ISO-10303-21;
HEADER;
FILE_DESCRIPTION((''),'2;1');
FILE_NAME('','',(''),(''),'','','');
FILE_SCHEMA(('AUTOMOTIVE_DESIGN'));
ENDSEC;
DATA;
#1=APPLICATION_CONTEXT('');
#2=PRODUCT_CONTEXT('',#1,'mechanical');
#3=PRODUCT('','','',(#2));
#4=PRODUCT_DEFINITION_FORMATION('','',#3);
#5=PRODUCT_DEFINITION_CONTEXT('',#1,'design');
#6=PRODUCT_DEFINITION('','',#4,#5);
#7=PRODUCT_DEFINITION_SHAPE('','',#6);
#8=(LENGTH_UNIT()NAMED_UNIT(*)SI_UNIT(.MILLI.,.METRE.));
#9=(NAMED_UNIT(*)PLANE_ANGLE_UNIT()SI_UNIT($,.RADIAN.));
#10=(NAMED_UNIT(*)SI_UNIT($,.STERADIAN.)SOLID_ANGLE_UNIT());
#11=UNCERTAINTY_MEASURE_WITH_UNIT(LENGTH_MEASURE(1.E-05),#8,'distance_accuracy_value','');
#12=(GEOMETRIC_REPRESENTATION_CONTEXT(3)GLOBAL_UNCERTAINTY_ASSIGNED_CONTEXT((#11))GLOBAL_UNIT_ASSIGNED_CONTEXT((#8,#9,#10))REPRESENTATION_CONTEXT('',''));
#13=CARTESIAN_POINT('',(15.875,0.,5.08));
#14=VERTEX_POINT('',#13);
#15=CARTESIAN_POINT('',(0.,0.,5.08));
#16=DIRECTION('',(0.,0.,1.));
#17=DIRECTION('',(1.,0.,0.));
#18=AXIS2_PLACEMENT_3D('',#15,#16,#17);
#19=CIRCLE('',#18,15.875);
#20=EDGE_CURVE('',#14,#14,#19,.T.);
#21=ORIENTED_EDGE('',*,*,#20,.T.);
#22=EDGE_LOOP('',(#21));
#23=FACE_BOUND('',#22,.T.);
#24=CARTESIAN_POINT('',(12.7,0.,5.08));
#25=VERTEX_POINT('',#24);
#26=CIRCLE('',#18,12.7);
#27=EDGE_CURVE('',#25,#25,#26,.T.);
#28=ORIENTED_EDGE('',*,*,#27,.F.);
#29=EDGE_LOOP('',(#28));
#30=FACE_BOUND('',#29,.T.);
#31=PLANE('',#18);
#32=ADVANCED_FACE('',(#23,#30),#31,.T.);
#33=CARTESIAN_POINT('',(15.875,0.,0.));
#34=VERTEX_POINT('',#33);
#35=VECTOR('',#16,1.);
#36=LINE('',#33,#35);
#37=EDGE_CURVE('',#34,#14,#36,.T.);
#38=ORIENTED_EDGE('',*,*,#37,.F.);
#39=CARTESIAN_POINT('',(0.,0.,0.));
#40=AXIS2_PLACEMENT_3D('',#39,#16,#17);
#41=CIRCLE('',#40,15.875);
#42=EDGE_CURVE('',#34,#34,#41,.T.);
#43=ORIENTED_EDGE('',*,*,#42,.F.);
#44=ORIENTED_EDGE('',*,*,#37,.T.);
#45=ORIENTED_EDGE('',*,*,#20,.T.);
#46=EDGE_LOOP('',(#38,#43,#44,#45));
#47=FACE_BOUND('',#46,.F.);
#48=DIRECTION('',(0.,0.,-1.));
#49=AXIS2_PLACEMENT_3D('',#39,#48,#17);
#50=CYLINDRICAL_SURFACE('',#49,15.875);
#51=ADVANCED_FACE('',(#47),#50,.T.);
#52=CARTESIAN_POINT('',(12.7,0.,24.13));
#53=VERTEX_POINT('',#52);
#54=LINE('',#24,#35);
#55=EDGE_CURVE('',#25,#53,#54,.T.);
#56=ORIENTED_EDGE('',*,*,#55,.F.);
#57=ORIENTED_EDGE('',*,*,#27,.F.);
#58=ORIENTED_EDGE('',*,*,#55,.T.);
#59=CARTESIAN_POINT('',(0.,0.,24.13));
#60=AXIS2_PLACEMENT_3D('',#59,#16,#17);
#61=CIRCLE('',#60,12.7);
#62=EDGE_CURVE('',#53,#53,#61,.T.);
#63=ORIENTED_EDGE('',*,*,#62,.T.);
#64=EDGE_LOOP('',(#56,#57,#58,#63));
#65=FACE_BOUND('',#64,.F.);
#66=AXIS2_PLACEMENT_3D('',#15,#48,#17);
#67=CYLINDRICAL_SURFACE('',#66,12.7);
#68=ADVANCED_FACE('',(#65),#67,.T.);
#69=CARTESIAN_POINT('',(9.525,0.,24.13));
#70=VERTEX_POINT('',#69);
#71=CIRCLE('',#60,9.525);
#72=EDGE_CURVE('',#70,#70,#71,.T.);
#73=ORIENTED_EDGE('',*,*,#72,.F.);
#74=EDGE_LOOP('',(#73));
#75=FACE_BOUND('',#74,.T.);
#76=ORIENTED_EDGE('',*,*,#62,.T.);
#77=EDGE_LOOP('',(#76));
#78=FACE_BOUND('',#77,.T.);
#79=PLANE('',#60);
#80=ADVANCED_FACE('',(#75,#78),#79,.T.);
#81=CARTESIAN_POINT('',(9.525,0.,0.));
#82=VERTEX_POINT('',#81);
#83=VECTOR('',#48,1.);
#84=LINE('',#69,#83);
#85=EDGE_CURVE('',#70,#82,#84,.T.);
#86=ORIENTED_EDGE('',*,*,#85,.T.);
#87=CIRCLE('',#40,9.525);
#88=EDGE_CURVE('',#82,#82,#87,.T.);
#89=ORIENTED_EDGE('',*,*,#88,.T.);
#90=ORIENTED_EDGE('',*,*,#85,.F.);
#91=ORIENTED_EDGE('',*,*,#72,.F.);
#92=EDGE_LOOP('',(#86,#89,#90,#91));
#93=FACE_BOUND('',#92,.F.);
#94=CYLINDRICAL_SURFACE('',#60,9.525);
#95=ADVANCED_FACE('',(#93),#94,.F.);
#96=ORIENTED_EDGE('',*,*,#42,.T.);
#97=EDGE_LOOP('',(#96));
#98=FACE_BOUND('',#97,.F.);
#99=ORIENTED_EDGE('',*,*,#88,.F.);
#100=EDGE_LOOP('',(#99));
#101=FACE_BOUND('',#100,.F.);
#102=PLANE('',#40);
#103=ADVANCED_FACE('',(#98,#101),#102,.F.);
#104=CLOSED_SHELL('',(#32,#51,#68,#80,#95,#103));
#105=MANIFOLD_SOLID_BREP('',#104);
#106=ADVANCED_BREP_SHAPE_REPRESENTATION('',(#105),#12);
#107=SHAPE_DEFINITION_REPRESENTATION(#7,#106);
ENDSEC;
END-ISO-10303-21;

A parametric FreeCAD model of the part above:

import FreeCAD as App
import Part
import Sketcher
from FreeCAD import Vector
Q = App.Units.Quantity

doc = App.newDocument("Part")
body = doc.addObject("PartDesign::Body", "Body")

sketch1 = body.newObject("Sketcher::SketchObject", "Sketch")
sketch1.AttachmentSupport = (doc.getObject("XY_Plane"), [""])
sketch1.MapMode = "FlatFace"
sketch1.addGeometry(Part.Circle(Vector(0, 0, 0), Vector(0, 0, 1), 15.875), False)
sketch1.addConstraint([
    Sketcher.Constraint("Coincident", 0, 3, -1, 1),
    Sketcher.Constraint("Diameter", 0, Q("1.25 in")),
])
pad1 = body.newObject("PartDesign::Pad", "Pad")
pad1.Profile = sketch1
pad1.Length = Q("0.2 in")

sketch2 = body.newObject("Sketcher::SketchObject", "Sketch001")
sketch2.AttachmentSupport = (doc.getObject("XY_Plane"), [""])
sketch2.MapMode = "FlatFace"
sketch2.AttachmentOffset = App.Placement(Vector(0, 0, 0.2 * 25.4), App.Rotation())
sketch2.addGeometry(Part.Circle(Vector(0, 0, 0), Vector(0, 0, 1), 12.7), False)
sketch2.addConstraint([
    Sketcher.Constraint("Coincident", 0, 3, -1, 1),
    Sketcher.Constraint("Diameter", 0, Q("1 in")),
])
pad2 = body.newObject("PartDesign::Pad", "Pad001")
pad2.Profile = sketch2
pad2.Length = Q("0.75 in")

sketch3 = body.newObject("Sketcher::SketchObject", "Sketch002")
sketch3.AttachmentSupport = (doc.getObject("XY_Plane"), [""])
sketch3.MapMode = "FlatFace"
sketch3.AttachmentOffset = App.Placement(Vector(0, 0, 0.95 * 25.4), App.Rotation())
sketch3.addGeometry(Part.Circle(Vector(0, 0, 0), Vector(0, 0, 1), 9.525), False)
sketch3.addConstraint([
    Sketcher.Constraint("Coincident", 0, 3, -1, 1),
    Sketcher.Constraint("Diameter", 0, Q("0.75 in")),
])
pocket1 = body.newObject("PartDesign::Pocket", "Pocket")
pocket1.Profile = sketch3
pocket1.Type = "ThroughAll"

doc.recompute()
